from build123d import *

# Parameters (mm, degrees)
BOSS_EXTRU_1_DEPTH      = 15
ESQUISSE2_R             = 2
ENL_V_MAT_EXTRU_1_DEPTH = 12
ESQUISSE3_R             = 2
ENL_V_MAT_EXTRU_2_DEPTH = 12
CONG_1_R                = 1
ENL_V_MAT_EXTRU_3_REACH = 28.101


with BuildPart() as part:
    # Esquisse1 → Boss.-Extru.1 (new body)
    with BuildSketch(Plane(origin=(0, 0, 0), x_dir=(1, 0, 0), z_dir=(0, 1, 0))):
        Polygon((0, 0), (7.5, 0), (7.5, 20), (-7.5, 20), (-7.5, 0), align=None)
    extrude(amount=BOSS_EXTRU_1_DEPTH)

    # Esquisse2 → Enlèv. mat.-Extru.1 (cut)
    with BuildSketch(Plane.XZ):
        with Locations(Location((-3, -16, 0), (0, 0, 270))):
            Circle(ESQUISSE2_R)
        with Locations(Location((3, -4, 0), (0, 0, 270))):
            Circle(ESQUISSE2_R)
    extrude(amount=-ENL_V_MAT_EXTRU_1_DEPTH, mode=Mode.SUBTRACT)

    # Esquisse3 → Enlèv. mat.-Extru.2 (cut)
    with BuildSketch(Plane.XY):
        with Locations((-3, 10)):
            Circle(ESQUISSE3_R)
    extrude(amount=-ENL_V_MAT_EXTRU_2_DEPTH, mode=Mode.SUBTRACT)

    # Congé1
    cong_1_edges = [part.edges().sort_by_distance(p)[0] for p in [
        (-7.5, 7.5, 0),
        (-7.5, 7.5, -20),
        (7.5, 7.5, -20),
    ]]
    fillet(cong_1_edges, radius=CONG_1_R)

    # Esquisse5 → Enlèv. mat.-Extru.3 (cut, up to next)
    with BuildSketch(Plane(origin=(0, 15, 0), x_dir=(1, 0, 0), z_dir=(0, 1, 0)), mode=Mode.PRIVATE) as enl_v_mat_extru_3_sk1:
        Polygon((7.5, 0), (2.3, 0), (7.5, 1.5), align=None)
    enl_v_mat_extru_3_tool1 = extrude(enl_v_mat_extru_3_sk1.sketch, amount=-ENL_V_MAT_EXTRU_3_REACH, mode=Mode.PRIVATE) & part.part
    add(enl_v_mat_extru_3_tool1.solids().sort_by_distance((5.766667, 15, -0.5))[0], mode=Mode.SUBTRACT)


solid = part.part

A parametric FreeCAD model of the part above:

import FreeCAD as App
import Part
import Sketcher

V = App.Vector
Q = App.Units.Quantity


def edges_at(feature, points):
    """Names of the edges that pass closest to the given points."""
    edges = feature.Shape.Edges
    near = lambda p: min(range(len(edges)), key=lambda i: edges[i].distToShape(Part.Vertex(*p))[0])
    return sorted({f"Edge{near(p) + 1}" for p in points})

doc = App.newDocument("Part")
body = doc.addObject("PartDesign::Body", "Body")

sketch1 = body.newObject("Sketcher::SketchObject", "Sketch")
sketch1.AttachmentSupport = (doc.getObject("XZ_Plane"), [""])
sketch1.MapMode = "FlatFace"
sketch1.addGeometry(Part.LineSegment(V(8, 0, 0), V(8, -20, 0)), False)
sketch1.addGeometry(Part.LineSegment(V(8, -20, 0), V(-8, -20, 0)), False)
sketch1.addGeometry(Part.LineSegment(V(-8, -20, 0), V(-8, 0, 0)), False)
sketch1.addGeometry(Part.LineSegment(V(-8, 0, 0), V(8, 0, 0)), False)
sketch1.addConstraint(Sketcher.Constraint("Coincident", 0, 2, 1, 1))
sketch1.addConstraint(Sketcher.Constraint("Coincident", 1, 2, 2, 1))
sketch1.addConstraint(Sketcher.Constraint("Coincident", 2, 2, 3, 1))
sketch1.addConstraint(Sketcher.Constraint("Coincident", 3, 2, 0, 1))
sketch1.addConstraint(Sketcher.Constraint("Vertical", 0))
sketch1.addConstraint(Sketcher.Constraint("Horizontal", 1))
sketch1.addConstraint(Sketcher.Constraint("Vertical", 2))
sketch1.addConstraint(Sketcher.Constraint("Horizontal", 3))
sketch1.addConstraint(Sketcher.Constraint("Symmetric", 2, 2, 3, 2, -1, 1))
sketch1.addConstraint(Sketcher.Constraint("DistanceX", 1, 2, 1, 1, Q("15 mm")))
sketch1.addConstraint(Sketcher.Constraint("DistanceY", 0, 2, 0, 1, Q("20 mm")))
pad1 = body.newObject("PartDesign::Pad", "Pad")
pad1.Profile = sketch1
pad1.Length = 15
pad1.Reversed = True

sketch2 = body.newObject("Sketcher::SketchObject", "Sketch001")
sketch2.AttachmentSupport = (doc.getObject("XZ_Plane"), [""])
sketch2.MapMode = "FlatFace"
sketch2.addGeometry(Part.Circle(V(-3, -16, 0), V(0, 0, 1), 2), False)
sketch2.addGeometry(Part.Circle(V(3, -4, 0), V(0, 0, 1), 2), False)
sketch2.addConstraint(Sketcher.Constraint("Equal", 0, 1))
sketch2.addConstraint(Sketcher.Constraint("Diameter", 0, Q("4 mm")))
sketch2.addConstraint(Sketcher.Constraint("DistanceX", 0, 3, -1, 1, Q("3 mm")))
sketch2.addConstraint(Sketcher.Constraint("DistanceY", 0, 3, -1, 1, Q("16 mm")))
sketch2.addConstraint(Sketcher.Constraint("DistanceX", -1, 1, 1, 3, Q("3 mm")))
sketch2.addConstraint(Sketcher.Constraint("DistanceY", 1, 3, -1, 1, Q("4 mm")))
pocket1 = body.newObject("PartDesign::Pocket", "Pocket")
pocket1.Profile = sketch2
pocket1.Length = 12

sketch3 = body.newObject("Sketcher::SketchObject", "Sketch002")
sketch3.AttachmentSupport = (doc.getObject("XY_Plane"), [""])
sketch3.MapMode = "FlatFace"
sketch3.addGeometry(Part.Circle(V(-3, 10, 0), V(0, 0, 1), 2), False)
sketch3.addConstraint(Sketcher.Constraint("Diameter", 0, Q("4 mm")))
sketch3.addConstraint(Sketcher.Constraint("DistanceX", 0, 3, -1, 1, Q("3 mm")))
sketch3.addConstraint(Sketcher.Constraint("DistanceY", -1, 1, 0, 3, Q("10 mm")))
pocket2 = body.newObject("PartDesign::Pocket", "Pocket001")
pocket2.Profile = sketch3
pocket2.Length = 12
doc.recompute()

fillet = body.newObject("PartDesign::Fillet", "Fillet")
fillet.Base = (pocket2, edges_at(pocket2, [(-7.5, 7.5, 0), (-7.5, 7.5, -20), (7.5, 7.5, -20)]))
fillet.Radius = 1

sketch4 = body.newObject("Sketcher::SketchObject", "Sketch003")
sketch4.AttachmentSupport = (doc.getObject("XZ_Plane"), [""])
sketch4.MapMode = "FlatFace"
sketch4.AttachmentOffset = App.Placement(V(0, 0, -15), App.Rotation())
sketch4.addGeometry(Part.LineSegment(V(2.3, 0, 0), V(7.5, 0, 0)), False)
sketch4.addGeometry(Part.LineSegment(V(7.5, 0, 0), V(7.5, -1.5, 0)), False)
sketch4.addGeometry(Part.LineSegment(V(7.5, -1.5, 0), V(2.3, 0, 0)), False)
sketch4.addConstraint(Sketcher.Constraint("Coincident", 0, 2, 1, 1))
sketch4.addConstraint(Sketcher.Constraint("Coincident", 1, 2, 2, 1))
sketch4.addConstraint(Sketcher.Constraint("Coincident", 2, 2, 0, 1))
sketch4.addConstraint(Sketcher.Constraint("Horizontal", 0))
sketch4.addConstraint(Sketcher.Constraint("Vertical", 1))
sketch4.addConstraint(Sketcher.Constraint("PointOnObject", 0, 2, -1))
sketch4.addConstraint(Sketcher.Constraint("DistanceX", 0, 1, 0, 2, Q("5.2 mm")))
sketch4.addConstraint(Sketcher.Constraint("DistanceY", 1, 2, 1, 1, Q("1.5 mm")))
sketch4.addConstraint(Sketcher.Constraint("DistanceX", -1, 1, 0, 2, Q("7.5 mm")))
pocket3 = body.newObject("PartDesign::Pocket", "Pocket002")
pocket3.Profile = sketch4
pocket3.Type = "UpToFirst"
pocket3.Reversed = True

doc.recompute()
